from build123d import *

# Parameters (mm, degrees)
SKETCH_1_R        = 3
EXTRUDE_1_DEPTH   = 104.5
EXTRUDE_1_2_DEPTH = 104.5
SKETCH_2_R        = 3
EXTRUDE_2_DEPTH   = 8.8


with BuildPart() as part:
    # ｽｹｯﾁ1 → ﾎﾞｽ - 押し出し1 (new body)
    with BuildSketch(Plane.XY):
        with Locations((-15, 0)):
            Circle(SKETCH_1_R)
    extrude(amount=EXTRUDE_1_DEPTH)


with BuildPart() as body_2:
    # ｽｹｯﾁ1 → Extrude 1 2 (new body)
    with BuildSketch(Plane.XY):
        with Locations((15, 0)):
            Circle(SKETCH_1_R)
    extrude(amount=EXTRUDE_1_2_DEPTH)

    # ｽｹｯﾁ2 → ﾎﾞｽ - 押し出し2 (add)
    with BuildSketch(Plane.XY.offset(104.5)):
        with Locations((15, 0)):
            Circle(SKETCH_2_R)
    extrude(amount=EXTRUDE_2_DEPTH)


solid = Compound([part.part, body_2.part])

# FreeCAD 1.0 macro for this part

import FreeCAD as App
import Part
import Sketcher

V = App.Vector

doc = App.newDocument("Part")
body = doc.addObject("PartDesign::Body", "Body")

sketch1 = body.newObject("Sketcher::SketchObject", "Sketch")
sketch1.AttachmentSupport = (doc.getObject("XY_Plane"), [""])
sketch1.MapMode = "FlatFace"
sketch1.addGeometry(Part.Circle(V(-15, 0, 0), V(0, 0, 1), 3), False)
sketch1.addConstraint(Sketcher.Constraint("PointOnObject", 0, 3, -1))
sketch1.addConstraint(Sketcher.Constraint("Diameter", 0, 6.0))
sketch1.addConstraint(Sketcher.Constraint("DistanceX", 0, 3, -1, 1, 15.0))
pad1 = body.newObject("PartDesign::Pad", "Pad")
pad1.Profile = sketch1
pad1.Length = 104.5
body2 = doc.addObject("PartDesign::Body", "Body001")

sketch2 = body2.newObject("Sketcher::SketchObject", "Sketch001")
sketch2.AttachmentSupport = (doc.getObject("XY_Plane001"), [""])
sketch2.MapMode = "FlatFace"
sketch2.addGeometry(Part.Circle(V(15, 0, 0), V(0, 0, 1), 3), False)
sketch2.addConstraint(Sketcher.Constraint("PointOnObject", 0, 3, -1))
sketch2.addConstraint(Sketcher.Constraint("Diameter", 0, 6.0))
sketch2.addConstraint(Sketcher.Constraint("DistanceX", -1, 1, 0, 3, 15.0))
pad2 = body2.newObject("PartDesign::Pad", "Pad001")
pad2.Profile = sketch2
pad2.Length = 104.5

sketch3 = body2.newObject("Sketcher::SketchObject", "Sketch002")
sketch3.AttachmentSupport = (doc.getObject("XY_Plane001"), [""])
sketch3.MapMode = "FlatFace"
sketch3.AttachmentOffset = App.Placement(V(0, 0, 104.5), App.Rotation())
sketch3.addGeometry(Part.Circle(V(15, 0, 0), V(0, 0, 1), 3), False)
sketch3.addConstraint(Sketcher.Constraint("PointOnObject", 0, 3, -1))
sketch3.addConstraint(Sketcher.Constraint("Diameter", 0, 6.0))
sketch3.addConstraint(Sketcher.Constraint("DistanceX", -1, 1, 0, 3, 15.0))
pad3 = body2.newObject("PartDesign::Pad", "Pad002")
pad3.Profile = sketch3
pad3.Length = 8.8

doc.recompute()
